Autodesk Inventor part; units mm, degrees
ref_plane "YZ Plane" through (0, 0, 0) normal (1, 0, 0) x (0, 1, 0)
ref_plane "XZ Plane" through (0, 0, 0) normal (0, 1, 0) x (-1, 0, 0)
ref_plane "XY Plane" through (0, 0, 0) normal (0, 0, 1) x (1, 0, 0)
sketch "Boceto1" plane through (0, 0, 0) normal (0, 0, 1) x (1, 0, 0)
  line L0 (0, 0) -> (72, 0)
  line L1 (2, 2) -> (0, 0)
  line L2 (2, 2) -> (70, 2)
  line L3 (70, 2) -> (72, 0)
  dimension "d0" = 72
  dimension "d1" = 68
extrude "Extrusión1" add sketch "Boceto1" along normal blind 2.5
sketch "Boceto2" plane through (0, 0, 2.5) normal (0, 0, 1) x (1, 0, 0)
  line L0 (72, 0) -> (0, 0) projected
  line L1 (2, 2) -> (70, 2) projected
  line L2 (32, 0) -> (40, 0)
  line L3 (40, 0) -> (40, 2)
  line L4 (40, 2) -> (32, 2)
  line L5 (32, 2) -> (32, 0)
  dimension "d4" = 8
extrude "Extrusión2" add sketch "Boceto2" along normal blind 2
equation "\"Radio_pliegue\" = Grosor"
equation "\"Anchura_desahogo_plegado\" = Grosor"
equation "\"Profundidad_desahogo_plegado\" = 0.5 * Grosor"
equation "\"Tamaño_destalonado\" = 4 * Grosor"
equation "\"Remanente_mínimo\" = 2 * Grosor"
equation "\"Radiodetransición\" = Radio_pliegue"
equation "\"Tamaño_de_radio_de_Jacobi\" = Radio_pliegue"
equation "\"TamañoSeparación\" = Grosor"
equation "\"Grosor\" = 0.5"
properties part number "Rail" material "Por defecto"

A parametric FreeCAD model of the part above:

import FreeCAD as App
import Part
import Sketcher
Q = App.Units.Quantity


def add_polygon(sketch, points):
    """Adds a closed chain of lines whose ends are joined by coincident constraints."""
    first, n = sketch.GeometryCount, len(points)
    for a, b in zip(points, points[1:] + points[:1]):
        sketch.addGeometry(Part.LineSegment(App.Vector(*a, 0), App.Vector(*b, 0)), False)
    for i in range(n):
        sketch.addConstraint(Sketcher.Constraint("Coincident", first + i, 2, first + (i + 1) % n, 1))

doc = App.newDocument("Part")
params = doc.addObject("Spreadsheet::Sheet", "Params")
for row, (alias, value) in enumerate([
    ("sketch1_width", "72 mm"),
    ("sketch1_width2", "68 mm"),
    ("pad1_length", "2.5 mm"),
    ("sketch2_width", "8 mm"),
    ("sketch2_height", "2 mm"),
    ("pad2_length", "2 mm"),
], start=1):
    params.set(f"A{row}", alias)
    params.set(f"B{row}", "=" + value)
    params.setAlias(f"B{row}", alias)

body = doc.addObject("PartDesign::Body", "Body")

sketch1 = doc.addObject("Sketcher::SketchObject", "Sketch")
body.addObject(sketch1)
sketch1.AttachmentSupport = (doc.XY_Plane, [""])
sketch1.MapMode = "FlatFace"
add_polygon(sketch1, [(2, 2), (0, 0), (72, 0), (70, 2)])
sketch1.addConstraint([
    Sketcher.Constraint("Horizontal", 1),
    Sketcher.Constraint("Horizontal", 3),
    Sketcher.Constraint("Coincident", 0, 2, -1, 1),
    Sketcher.Constraint("Perpendicular", 0, 2),
    Sketcher.Constraint("Equal", 0, 2),
    Sketcher.Constraint("DistanceX", 1, 1, 1, 2, Q("72 mm")),
    Sketcher.Constraint("DistanceX", 3, 2, 3, 1, Q("68 mm")),
])
sketch1.setExpression("Constraints[9]", "Params.sketch1_width")
sketch1.setExpression("Constraints[10]", "Params.sketch1_width2")
pad1 = doc.addObject("PartDesign::Pad", "Pad")
body.addObject(pad1)
pad1.Profile = sketch1
pad1.setExpression("Length", "Params.pad1_length")

sketch2 = doc.addObject("Sketcher::SketchObject", "Sketch001")
body.addObject(sketch2)
sketch2.AttachmentSupport = (doc.XY_Plane, [""])
sketch2.MapMode = "FlatFace"
sketch2.AttachmentOffset = App.Placement(App.Vector(0, 0, 2.5), App.Rotation())
add_polygon(sketch2, [(32, 0), (40, 0), (40, 2), (32, 2)])
sketch2.addConstraint([
    Sketcher.Constraint("Horizontal", 0),
    Sketcher.Constraint("Vertical", 1),
    Sketcher.Constraint("Horizontal", 2),
    Sketcher.Constraint("Vertical", 3),
    Sketcher.Constraint("PointOnObject", 0, 2, -1),
    Sketcher.Constraint("DistanceX", 0, 1, 0, 2, Q("8 mm")),
    Sketcher.Constraint("DistanceY", 1, 1, 1, 2, Q("2 mm")),
    Sketcher.Constraint("DistanceX", -1, 1, 0, 2, Q("40 mm")),
])
sketch2.setExpression("Constraints[9]", "Params.sketch2_width")
sketch2.setExpression("Constraints[10]", "Params.sketch2_height")
pad2 = doc.addObject("PartDesign::Pad", "Pad001")
body.addObject(pad2)
pad2.Profile = sketch2
pad2.setExpression("Length", "Params.pad2_length")

doc.recompute()
